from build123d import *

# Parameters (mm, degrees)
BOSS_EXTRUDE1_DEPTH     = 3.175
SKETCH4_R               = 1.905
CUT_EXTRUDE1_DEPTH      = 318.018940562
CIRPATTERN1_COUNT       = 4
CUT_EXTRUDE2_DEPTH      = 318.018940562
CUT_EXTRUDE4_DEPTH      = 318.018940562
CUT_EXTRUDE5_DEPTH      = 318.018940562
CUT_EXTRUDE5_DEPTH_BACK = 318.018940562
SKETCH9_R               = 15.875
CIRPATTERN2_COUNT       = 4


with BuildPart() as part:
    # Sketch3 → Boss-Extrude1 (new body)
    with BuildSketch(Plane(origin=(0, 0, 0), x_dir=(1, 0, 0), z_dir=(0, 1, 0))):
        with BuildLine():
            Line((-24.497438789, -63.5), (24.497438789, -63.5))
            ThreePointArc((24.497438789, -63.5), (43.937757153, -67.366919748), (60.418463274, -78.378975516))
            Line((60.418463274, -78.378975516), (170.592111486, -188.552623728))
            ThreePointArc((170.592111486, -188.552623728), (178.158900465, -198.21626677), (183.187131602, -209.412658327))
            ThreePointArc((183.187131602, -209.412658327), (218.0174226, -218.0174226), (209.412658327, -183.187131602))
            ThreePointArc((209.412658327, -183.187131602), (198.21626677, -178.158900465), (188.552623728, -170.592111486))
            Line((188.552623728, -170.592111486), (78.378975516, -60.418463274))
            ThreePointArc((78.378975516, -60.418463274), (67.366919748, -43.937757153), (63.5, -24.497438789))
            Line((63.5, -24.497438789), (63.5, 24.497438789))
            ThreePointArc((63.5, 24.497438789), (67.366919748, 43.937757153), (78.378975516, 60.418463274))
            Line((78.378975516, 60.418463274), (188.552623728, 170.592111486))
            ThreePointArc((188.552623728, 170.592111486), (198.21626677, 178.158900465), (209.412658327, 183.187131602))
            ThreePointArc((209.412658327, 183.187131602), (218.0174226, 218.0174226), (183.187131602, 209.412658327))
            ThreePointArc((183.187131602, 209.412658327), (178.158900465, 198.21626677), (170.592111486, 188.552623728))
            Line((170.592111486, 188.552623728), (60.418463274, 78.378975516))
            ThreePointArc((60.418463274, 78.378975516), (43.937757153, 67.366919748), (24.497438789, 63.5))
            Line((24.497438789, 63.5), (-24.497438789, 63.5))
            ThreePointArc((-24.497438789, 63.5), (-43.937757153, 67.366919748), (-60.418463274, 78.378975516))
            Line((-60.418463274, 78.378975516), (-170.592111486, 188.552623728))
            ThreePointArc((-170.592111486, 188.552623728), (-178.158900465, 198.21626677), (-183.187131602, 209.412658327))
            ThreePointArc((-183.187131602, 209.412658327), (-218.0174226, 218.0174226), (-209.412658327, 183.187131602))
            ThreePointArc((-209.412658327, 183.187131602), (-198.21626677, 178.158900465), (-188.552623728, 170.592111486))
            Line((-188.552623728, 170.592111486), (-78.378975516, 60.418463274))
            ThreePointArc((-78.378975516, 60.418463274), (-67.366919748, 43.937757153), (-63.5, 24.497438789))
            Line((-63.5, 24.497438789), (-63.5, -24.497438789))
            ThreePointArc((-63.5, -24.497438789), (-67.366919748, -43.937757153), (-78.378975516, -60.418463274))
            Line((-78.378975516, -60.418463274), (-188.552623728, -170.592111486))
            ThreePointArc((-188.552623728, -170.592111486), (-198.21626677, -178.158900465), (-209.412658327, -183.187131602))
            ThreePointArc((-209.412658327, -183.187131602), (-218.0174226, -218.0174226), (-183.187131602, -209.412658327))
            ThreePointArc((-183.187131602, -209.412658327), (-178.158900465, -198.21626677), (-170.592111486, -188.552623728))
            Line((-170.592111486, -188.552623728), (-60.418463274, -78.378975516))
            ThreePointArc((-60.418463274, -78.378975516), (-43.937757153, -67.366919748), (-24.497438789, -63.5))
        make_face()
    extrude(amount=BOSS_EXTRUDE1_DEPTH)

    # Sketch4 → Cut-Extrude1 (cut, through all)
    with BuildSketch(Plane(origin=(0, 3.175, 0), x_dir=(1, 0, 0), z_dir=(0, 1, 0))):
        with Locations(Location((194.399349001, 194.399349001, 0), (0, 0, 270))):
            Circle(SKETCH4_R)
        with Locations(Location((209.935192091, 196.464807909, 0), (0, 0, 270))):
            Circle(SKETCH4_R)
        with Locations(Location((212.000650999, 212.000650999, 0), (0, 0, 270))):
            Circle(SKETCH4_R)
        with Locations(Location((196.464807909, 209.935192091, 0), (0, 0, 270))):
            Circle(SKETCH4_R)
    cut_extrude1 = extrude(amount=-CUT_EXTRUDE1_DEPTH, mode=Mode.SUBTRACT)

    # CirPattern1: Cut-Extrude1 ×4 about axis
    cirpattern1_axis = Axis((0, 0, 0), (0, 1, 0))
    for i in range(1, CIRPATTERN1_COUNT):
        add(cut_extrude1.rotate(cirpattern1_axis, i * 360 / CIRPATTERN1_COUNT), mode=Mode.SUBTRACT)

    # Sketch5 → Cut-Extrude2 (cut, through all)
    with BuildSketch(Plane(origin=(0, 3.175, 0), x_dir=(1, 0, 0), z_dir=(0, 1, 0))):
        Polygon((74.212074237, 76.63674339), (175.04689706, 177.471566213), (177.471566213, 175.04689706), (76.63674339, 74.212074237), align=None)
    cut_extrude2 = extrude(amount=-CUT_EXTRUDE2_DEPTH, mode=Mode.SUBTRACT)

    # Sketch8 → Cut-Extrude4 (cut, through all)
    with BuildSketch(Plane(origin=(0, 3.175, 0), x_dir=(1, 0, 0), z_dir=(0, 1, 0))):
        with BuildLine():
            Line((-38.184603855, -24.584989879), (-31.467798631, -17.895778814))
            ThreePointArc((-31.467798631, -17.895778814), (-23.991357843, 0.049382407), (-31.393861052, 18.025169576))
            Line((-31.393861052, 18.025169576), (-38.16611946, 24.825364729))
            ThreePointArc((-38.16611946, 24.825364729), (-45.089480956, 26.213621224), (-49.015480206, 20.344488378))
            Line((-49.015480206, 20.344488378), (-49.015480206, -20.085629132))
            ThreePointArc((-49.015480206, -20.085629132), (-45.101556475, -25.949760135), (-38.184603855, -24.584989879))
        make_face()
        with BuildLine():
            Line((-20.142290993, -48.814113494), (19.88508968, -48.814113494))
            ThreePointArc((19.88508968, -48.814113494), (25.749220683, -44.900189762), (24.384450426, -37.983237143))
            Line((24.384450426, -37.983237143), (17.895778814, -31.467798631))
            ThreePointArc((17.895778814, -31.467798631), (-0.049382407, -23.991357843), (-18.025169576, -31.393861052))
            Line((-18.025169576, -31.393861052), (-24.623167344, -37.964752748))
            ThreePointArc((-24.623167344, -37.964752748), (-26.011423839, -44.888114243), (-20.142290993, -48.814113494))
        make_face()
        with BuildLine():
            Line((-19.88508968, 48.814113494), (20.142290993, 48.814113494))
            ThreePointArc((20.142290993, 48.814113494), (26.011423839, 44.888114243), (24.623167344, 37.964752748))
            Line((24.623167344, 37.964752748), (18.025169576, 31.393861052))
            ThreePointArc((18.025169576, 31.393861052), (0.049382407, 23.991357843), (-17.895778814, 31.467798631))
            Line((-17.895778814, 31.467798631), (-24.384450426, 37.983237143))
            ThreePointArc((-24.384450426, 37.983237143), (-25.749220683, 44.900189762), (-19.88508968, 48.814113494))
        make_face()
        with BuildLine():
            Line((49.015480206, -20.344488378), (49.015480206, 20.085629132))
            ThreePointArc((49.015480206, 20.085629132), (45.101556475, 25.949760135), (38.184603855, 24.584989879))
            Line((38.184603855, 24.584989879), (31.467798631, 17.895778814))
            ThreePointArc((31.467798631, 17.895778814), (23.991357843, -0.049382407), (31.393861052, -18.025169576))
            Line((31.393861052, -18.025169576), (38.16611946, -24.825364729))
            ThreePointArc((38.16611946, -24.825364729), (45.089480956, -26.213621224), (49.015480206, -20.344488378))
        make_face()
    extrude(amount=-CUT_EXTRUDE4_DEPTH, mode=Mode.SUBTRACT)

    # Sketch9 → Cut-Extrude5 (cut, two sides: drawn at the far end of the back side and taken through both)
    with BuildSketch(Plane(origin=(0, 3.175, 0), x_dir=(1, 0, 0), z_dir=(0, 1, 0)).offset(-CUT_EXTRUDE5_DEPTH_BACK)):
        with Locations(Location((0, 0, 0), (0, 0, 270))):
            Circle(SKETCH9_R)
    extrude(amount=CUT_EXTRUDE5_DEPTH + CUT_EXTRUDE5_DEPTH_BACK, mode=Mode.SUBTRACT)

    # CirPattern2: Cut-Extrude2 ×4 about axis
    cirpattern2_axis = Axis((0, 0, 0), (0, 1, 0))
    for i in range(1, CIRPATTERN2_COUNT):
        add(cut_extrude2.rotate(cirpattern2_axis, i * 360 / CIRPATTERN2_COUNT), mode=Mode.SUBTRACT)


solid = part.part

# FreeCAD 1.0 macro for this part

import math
import FreeCAD as App
import Part
import Sketcher
Q = App.Units.Quantity


def add_polygon(sketch, points):
    """Adds a closed chain of lines whose ends are joined by coincident constraints."""
    first, n = sketch.GeometryCount, len(points)
    for a, b in zip(points, points[1:] + points[:1]):
        sketch.addGeometry(Part.LineSegment(App.Vector(*a, 0), App.Vector(*b, 0)), False)
    for i in range(n):
        sketch.addConstraint(Sketcher.Constraint("Coincident", first + i, 2, first + (i + 1) % n, 1))

doc = App.newDocument("Part")
body = doc.addObject("PartDesign::Body", "Body")

# Sketch on XZ plane
sketch1 = body.newObject("Sketcher::SketchObject", "Sketch")
sketch1.AttachmentSupport = (doc.getObject("XZ_Plane"), [""])
sketch1.MapMode = "FlatFace"
sketch1.addGeometry([
    Part.LineSegment(App.Vector(-24.497439, 63.5, 0), App.Vector(24.497439, 63.5, 0)),  # 0
    Part.ArcOfCircle(Part.Circle(App.Vector(24.497439, 114.3, 0), App.Vector(0, 0, 1), 50.8), math.radians(-90), math.radians(-45)),  # 1
    Part.LineSegment(App.Vector(60.418463, 78.378976, 0), App.Vector(170.592111, 188.552624, 0)),  # 2
    Part.ArcOfCircle(Part.Circle(App.Vector(134.671087, 224.473648, 0), App.Vector(0, 0, 1), 50.8), math.radians(-45), math.radians(-17.246077)),  # 3
    Part.ArcOfCircle(Part.Circle(App.Vector(203.2, 203.2, 0), App.Vector(0, 0, 1), 20.955), math.radians(-72.753923), math.radians(162.753923)),  # 4
    Part.ArcOfCircle(Part.Circle(App.Vector(224.473648, 134.671087, 0), App.Vector(0, 0, 1), 50.8), math.radians(107.246077), math.radians(135)),  # 5
    Part.LineSegment(App.Vector(188.552624, 170.592111, 0), App.Vector(78.378976, 60.418463, 0)),  # 6
    Part.ArcOfCircle(Part.Circle(App.Vector(114.3, 24.497439, 0), App.Vector(0, 0, 1), 50.8), math.radians(135), math.radians(180)),  # 7
    Part.LineSegment(App.Vector(63.5, 24.497439, 0), App.Vector(63.5, -24.497439, 0)),  # 8
    Part.ArcOfCircle(Part.Circle(App.Vector(114.3, -24.497439, 0), App.Vector(0, 0, 1), 50.8), math.radians(180), math.radians(225)),  # 9
    Part.LineSegment(App.Vector(78.378976, -60.418463, 0), App.Vector(188.552624, -170.592111, 0)),  # 10
    Part.ArcOfCircle(Part.Circle(App.Vector(224.473648, -134.671087, 0), App.Vector(0, 0, 1), 50.8), math.radians(-135), math.radians(-107.246077)),  # 11
    Part.ArcOfCircle(Part.Circle(App.Vector(203.2, -203.2, 0), App.Vector(0, 0, 1), 20.955), math.radians(-162.753923), math.radians(72.753923)),  # 12
    Part.ArcOfCircle(Part.Circle(App.Vector(134.671087, -224.473648, 0), App.Vector(0, 0, 1), 50.8), math.radians(17.246077), math.radians(45)),  # 13
    Part.LineSegment(App.Vector(170.592111, -188.552624, 0), App.Vector(60.418463, -78.378976, 0)),  # 14
    Part.ArcOfCircle(Part.Circle(App.Vector(24.497439, -114.3, 0), App.Vector(0, 0, 1), 50.8), math.radians(45), math.radians(90)),  # 15
    Part.LineSegment(App.Vector(24.497439, -63.5, 0), App.Vector(-24.497439, -63.5, 0)),  # 16
    Part.ArcOfCircle(Part.Circle(App.Vector(-24.497439, -114.3, 0), App.Vector(0, 0, 1), 50.8), math.radians(90), math.radians(135)),  # 17
    Part.LineSegment(App.Vector(-60.418463, -78.378976, 0), App.Vector(-170.592111, -188.552624, 0)),  # 18
    Part.ArcOfCircle(Part.Circle(App.Vector(-134.671087, -224.473648, 0), App.Vector(0, 0, 1), 50.8), math.radians(135), math.radians(162.753923)),  # 19
    Part.ArcOfCircle(Part.Circle(App.Vector(-203.2, -203.2, 0), App.Vector(0, 0, 1), 20.955), math.radians(107.246077), math.radians(342.753923)),  # 20
    Part.ArcOfCircle(Part.Circle(App.Vector(-224.473648, -134.671087, 0), App.Vector(0, 0, 1), 50.8), math.radians(-72.753923), math.radians(-45)),  # 21
    Part.LineSegment(App.Vector(-188.552624, -170.592111, 0), App.Vector(-78.378976, -60.418463, 0)),  # 22
    Part.ArcOfCircle(Part.Circle(App.Vector(-114.3, -24.497439, 0), App.Vector(0, 0, 1), 50.8), math.radians(-45), math.radians(0)),  # 23
    Part.LineSegment(App.Vector(-63.5, -24.497439, 0), App.Vector(-63.5, 24.497439, 0)),  # 24
    Part.ArcOfCircle(Part.Circle(App.Vector(-114.3, 24.497439, 0), App.Vector(0, 0, 1), 50.8), math.radians(0), math.radians(45)),  # 25
    Part.LineSegment(App.Vector(-78.378976, 60.418463, 0), App.Vector(-188.552624, 170.592111, 0)),  # 26
    Part.ArcOfCircle(Part.Circle(App.Vector(-224.473648, 134.671087, 0), App.Vector(0, 0, 1), 50.8), math.radians(45), math.radians(72.753923)),  # 27
    Part.ArcOfCircle(Part.Circle(App.Vector(-203.2, 203.2, 0), App.Vector(0, 0, 1), 20.955), math.radians(17.246077), math.radians(252.753923)),  # 28
    Part.ArcOfCircle(Part.Circle(App.Vector(-134.671087, 224.473648, 0), App.Vector(0, 0, 1), 50.8), math.radians(-162.753923), math.radians(-135)),  # 29
    Part.LineSegment(App.Vector(-170.592111, 188.552624, 0), App.Vector(-60.418463, 78.378976, 0)),  # 30
    Part.ArcOfCircle(Part.Circle(App.Vector(-24.497439, 114.3, 0), App.Vector(0, 0, 1), 50.8), math.radians(-135), math.radians(-90)),  # 31
], False)
sketch1.addConstraint([
    Sketcher.Constraint("Tangent", 0, 2, 1, 1),
    Sketcher.Constraint("Tangent", 1, 2, 2, 1),
    Sketcher.Constraint("Tangent", 2, 2, 3, 1),
    Sketcher.Constraint("Tangent", 3, 2, 4, 2),
    Sketcher.Constraint("Tangent", 4, 1, 5, 1),
    Sketcher.Constraint("Tangent", 5, 2, 6, 1),
    Sketcher.Constraint("Tangent", 6, 2, 7, 1),
    Sketcher.Constraint("Tangent", 7, 2, 8, 1),
    Sketcher.Constraint("Tangent", 8, 2, 9, 1),
    Sketcher.Constraint("Tangent", 9, 2, 10, 1),
    Sketcher.Constraint("Tangent", 10, 2, 11, 1),
    Sketcher.Constraint("Tangent", 11, 2, 12, 2),
    Sketcher.Constraint("Tangent", 12, 1, 13, 1),
    Sketcher.Constraint("Tangent", 13, 2, 14, 1),
    Sketcher.Constraint("Tangent", 14, 2, 15, 1),
    Sketcher.Constraint("Tangent", 15, 2, 16, 1),
    Sketcher.Constraint("Tangent", 16, 2, 17, 1),
    Sketcher.Constraint("Tangent", 17, 2, 18, 1),
    Sketcher.Constraint("Tangent", 18, 2, 19, 1),
    Sketcher.Constraint("Tangent", 19, 2, 20, 2),
    Sketcher.Constraint("Tangent", 20, 1, 21, 1),
    Sketcher.Constraint("Tangent", 21, 2, 22, 1),
    Sketcher.Constraint("Tangent", 22, 2, 23, 1),
    Sketcher.Constraint("Tangent", 23, 2, 24, 1),
    Sketcher.Constraint("Tangent", 24, 2, 25, 1),
    Sketcher.Constraint("Tangent", 25, 2, 26, 1),
    Sketcher.Constraint("Tangent", 26, 2, 27, 1),
    Sketcher.Constraint("Tangent", 27, 2, 28, 2),
    Sketcher.Constraint("Tangent", 28, 1, 29, 1),
    Sketcher.Constraint("Tangent", 29, 2, 30, 1),
    Sketcher.Constraint("Tangent", 30, 2, 31, 1),
    Sketcher.Constraint("Tangent", 31, 2, 0, 1),
    Sketcher.Constraint("Horizontal", 0),
    Sketcher.Constraint("Vertical", 8),
    Sketcher.Constraint("Horizontal", 16),
    Sketcher.Constraint("Vertical", 24),
    Sketcher.Constraint("Equal", 1, 3),
    Sketcher.Constraint("Equal", 3, 5),
    Sketcher.Constraint("Equal", 5, 7),
    Sketcher.Constraint("Equal", 7, 9),
    Sketcher.Constraint("Equal", 9, 11),
    Sketcher.Constraint("Equal", 4, 12),
    Sketcher.Constraint("Equal", 11, 13),
    Sketcher.Constraint("Equal", 13, 15),
    Sketcher.Constraint("Equal", 15, 17),
    Sketcher.Constraint("Equal", 17, 19),
    Sketcher.Constraint("Equal", 12, 20),
    Sketcher.Constraint("Equal", 19, 21),
    Sketcher.Constraint("Equal", 21, 23),
    Sketcher.Constraint("Equal", 23, 25),
    Sketcher.Constraint("Equal", 25, 27),
    Sketcher.Constraint("Equal", 20, 28),
    Sketcher.Constraint("Equal", 27, 29),
    Sketcher.Constraint("Equal", 29, 31),
    Sketcher.Constraint("Symmetric", 1, 3, 17, 3, -1, 1),
    Sketcher.Constraint("Symmetric", 3, 3, 19, 3, -1, 1),
    Sketcher.Constraint("Symmetric", 5, 3, 21, 3, -1, 1),
    Sketcher.Constraint("Symmetric", 7, 3, 23, 3, -1, 1),
    Sketcher.Constraint("Symmetric", 11, 3, 27, 3, -1, 1),
    Sketcher.Constraint("Symmetric", 13, 3, 29, 3, -1, 1),
    Sketcher.Constraint("Symmetric", 13, 3, 19, 3, -2),
    Sketcher.Constraint("Symmetric", 11, 3, 21, 3, -2),
    Sketcher.Constraint("Parallel", 2, 6),
    Sketcher.Constraint("Perpendicular", 6, 10),
    Sketcher.Constraint("Parallel", 10, 14),
    Sketcher.Constraint("Perpendicular", 22, 26),
    Sketcher.Constraint("Parallel", 26, 30),
    Sketcher.Constraint("Horizontal", 9, 3, 23, 3),
    Sketcher.Constraint("Equal", 16, 8),
    Sketcher.Constraint("Equal", 2, 6),
    Sketcher.Constraint("Radius", 1, Q("2 in")),
    Sketcher.Constraint("DistanceX", -1, 1, 4, 3, Q("8 in")),
    Sketcher.Constraint("DistanceY", -1, 1, 4, 3, Q("8 in")),
    Sketcher.Constraint("Radius", 4, Q("0.825 in")),
    Sketcher.Constraint("DistanceY", 17, 3, 1, 3, Q("9 in")),
    Sketcher.Constraint("DistanceX", 0, 1, 0, 2, 48.994878),
])
pad1 = body.newObject("PartDesign::Pad", "Pad")
pad1.Profile = sketch1
pad1.Length = Q("0.125 in")
pad1.Reversed = True

# Sketch on XZ plane
sketch2 = body.newObject("Sketcher::SketchObject", "Sketch001")
sketch2.AttachmentSupport = (doc.getObject("XZ_Plane"), [""])
sketch2.MapMode = "FlatFace"
sketch2.AttachmentOffset = App.Placement(App.Vector(0, 0, -0.125 * 25.4), App.Rotation())
sketch2.addGeometry([
    Part.Circle(App.Vector(194.399349, -194.399349, 0), App.Vector(0, 0, 1), 1.905),
    Part.Circle(App.Vector(209.935192, -196.464808, 0), App.Vector(0, 0, 1), 1.905),
    Part.Circle(App.Vector(212.000651, -212.000651, 0), App.Vector(0, 0, 1), 1.905),
    Part.Circle(App.Vector(196.464808, -209.935192, 0), App.Vector(0, 0, 1), 1.905),
], False)
sketch2.addConstraint([
    Sketcher.Constraint("Equal", 0, 1),
    Sketcher.Constraint("Equal", 1, 2),
    Sketcher.Constraint("Equal", 2, 3),
    Sketcher.Constraint("Diameter", 0, Q("0.15 in")),
    Sketcher.Constraint("DistanceX", 0, 3, 2, 3, 17.601302),
    Sketcher.Constraint("DistanceY", 2, 3, 0, 3, 17.601302),
    Sketcher.Constraint("DistanceX", -1, 1, 0, 3, 194.399349),
    Sketcher.Constraint("DistanceY", 0, 3, -1, 1, 194.399349),
    Sketcher.Constraint("DistanceY", 1, 3, 0, 3, 2.065459),
    Sketcher.Constraint("DistanceX", 1, 3, 2, 3, 2.065459),
    Sketcher.Constraint("DistanceY", 2, 3, 3, 3, 2.065459),
    Sketcher.Constraint("DistanceX", 0, 3, 3, 3, 2.065459),
])
pocket1 = body.newObject("PartDesign::Pocket", "Pocket")
pocket1.Profile = sketch2
pocket1.Type = "ThroughAll"
pocket1.Reversed = True
doc.recompute()

polarpattern = body.newObject("PartDesign::PolarPattern", "PolarPattern")
polarpattern.Originals = [pocket1]
polarpattern.Axis = (doc.getObject("Y_Axis"), [""])
polarpattern.Angle = 360
polarpattern.Occurrences = 4
body.Tip = polarpattern

# Sketch on XZ plane
sketch3 = body.newObject("Sketcher::SketchObject", "Sketch002")
sketch3.AttachmentSupport = (doc.getObject("XZ_Plane"), [""])
sketch3.MapMode = "FlatFace"
sketch3.AttachmentOffset = App.Placement(App.Vector(0, 0, -0.125 * 25.4), App.Rotation())
add_polygon(sketch3, [(175.046897, -177.471566), (74.212074, -76.636743), (76.636743, -74.212074), (177.471566, -175.046897)])  # lines 0-3
sketch3.addConstraint([
    Sketcher.Constraint("Perpendicular", 0, 1),
    Sketcher.Constraint("Perpendicular", 1, 2),
    Sketcher.Constraint("Perpendicular", 2, 3),
    Sketcher.Constraint("Angle", 0, Q("135 deg")),
    Sketcher.Constraint("Distance", 1, Q("0.135 in")),
    Sketcher.Constraint("DistanceX", 0, 2, 2, 2, 103.259492),
    Sketcher.Constraint("DistanceX", -1, 1, 0, 2, 74.212074),
    Sketcher.Constraint("DistanceY", 0, 2, -1, 1, 76.636743),
])
pocket2 = body.newObject("PartDesign::Pocket", "Pocket001")
pocket2.Profile = sketch3
pocket2.Type = "ThroughAll"
pocket2.Reversed = True

# Sketch on XZ plane
sketch4 = body.newObject("Sketcher::SketchObject", "Sketch003")
sketch4.AttachmentSupport = (doc.getObject("XZ_Plane"), [""])
sketch4.MapMode = "FlatFace"
sketch4.AttachmentOffset = App.Placement(App.Vector(0, 0, -0.125 * 25.4), App.Rotation())
sketch4.addGeometry([
    Part.LineSegment(App.Vector(-38.184604, 24.58499, 0), App.Vector(-31.467799, 17.895779, 0)),  # 0
    Part.ArcOfCircle(Part.Circle(App.Vector(-49.391304, -0.101664, 0), App.Vector(0, 0, 1), 25.4), math.radians(-44.882066), math.radians(45.117934)),  # 1
    Part.LineSegment(App.Vector(-31.393861, -18.02517, 0), App.Vector(-38.166119, -24.825365, 0)),  # 2
    Part.ArcOfCircle(Part.Circle(App.Vector(-42.66548, -20.344488, 0), App.Vector(0, 0, 1), 6.35), math.radians(180), math.radians(315.117934)),  # 3
    Part.LineSegment(App.Vector(-49.01548, -20.344488, 0), App.Vector(-49.01548, 20.085629, 0)),  # 4
    Part.ArcOfCircle(Part.Circle(App.Vector(-42.66548, 20.085629, 0), App.Vector(0, 0, 1), 6.35), math.radians(45.117934), math.radians(180)),  # 5
    Part.LineSegment(App.Vector(-20.142291, 48.814113, 0), App.Vector(19.88509, 48.814113, 0)),  # 6
    Part.ArcOfCircle(Part.Circle(App.Vector(19.88509, 42.464113, 0), App.Vector(0, 0, 1), 6.35), math.radians(-44.882066), math.radians(90)),  # 7
    Part.LineSegment(App.Vector(24.38445, 37.983237, 0), App.Vector(17.895779, 31.467799, 0)),  # 8
    Part.ArcOfCircle(Part.Circle(App.Vector(-0.101664, 49.391304, 0), App.Vector(0, 0, 1), 25.4), math.radians(-134.882066), math.radians(-44.882066)),  # 9
    Part.LineSegment(App.Vector(-18.02517, 31.393861, 0), App.Vector(-24.623167, 37.964753, 0)),  # 10
    Part.ArcOfCircle(Part.Circle(App.Vector(-20.142291, 42.464113, 0), App.Vector(0, 0, 1), 6.35), math.radians(90), math.radians(225.117934)),  # 11
    Part.LineSegment(App.Vector(20.142291, -48.814113, 0), App.Vector(-19.88509, -48.814113, 0)),  # 12
    Part.ArcOfCircle(Part.Circle(App.Vector(-19.88509, -42.464113, 0), App.Vector(0, 0, 1), 6.35), math.radians(135.117934), math.radians(270)),  # 13
    Part.LineSegment(App.Vector(-24.38445, -37.983237, 0), App.Vector(-17.895779, -31.467799, 0)),  # 14
    Part.ArcOfCircle(Part.Circle(App.Vector(0.101664, -49.391304, 0), App.Vector(0, 0, 1), 25.4), math.radians(45.117934), math.radians(135.117934)),  # 15
    Part.LineSegment(App.Vector(18.02517, -31.393861, 0), App.Vector(24.623167, -37.964753, 0)),  # 16
    Part.ArcOfCircle(Part.Circle(App.Vector(20.142291, -42.464113, 0), App.Vector(0, 0, 1), 6.35), math.radians(-90), math.radians(45.117934)),  # 17
    Part.LineSegment(App.Vector(49.01548, 20.344488, 0), App.Vector(49.01548, -20.085629, 0)),  # 18
    Part.ArcOfCircle(Part.Circle(App.Vector(42.66548, -20.085629, 0), App.Vector(0, 0, 1), 6.35), math.radians(-134.882066), math.radians(0)),  # 19
    Part.LineSegment(App.Vector(38.184604, -24.58499, 0), App.Vector(31.467799, -17.895779, 0)),  # 20
    Part.ArcOfCircle(Part.Circle(App.Vector(49.391304, 0.101664, 0), App.Vector(0, 0, 1), 25.4), math.radians(135.117934), math.radians(225.117934)),  # 21
    Part.LineSegment(App.Vector(31.393861, 18.02517, 0), App.Vector(38.166119, 24.825365, 0)),  # 22
    Part.ArcOfCircle(Part.Circle(App.Vector(42.66548, 20.344488, 0), App.Vector(0, 0, 1), 6.35), math.radians(0), math.radians(135.117934)),  # 23
], False)
sketch4.addConstraint([
    Sketcher.Constraint("Tangent", 0, 2, 1, 2),
    Sketcher.Constraint("Tangent", 1, 1, 2, 1),
    Sketcher.Constraint("Tangent", 2, 2, 3, 2),
    Sketcher.Constraint("Tangent", 3, 1, 4, 1),
    Sketcher.Constraint("Tangent", 4, 2, 5, 2),
    Sketcher.Constraint("Tangent", 5, 1, 0, 1),
    Sketcher.Constraint("Tangent", 6, 2, 7, 2),
    Sketcher.Constraint("Tangent", 7, 1, 8, 1),
    Sketcher.Constraint("Tangent", 8, 2, 9, 2),
    Sketcher.Constraint("Tangent", 9, 1, 10, 1),
    Sketcher.Constraint("Tangent", 10, 2, 11, 2),
    Sketcher.Constraint("Tangent", 11, 1, 6, 1),
    Sketcher.Constraint("Tangent", 12, 2, 13, 2),
    Sketcher.Constraint("Tangent", 13, 1, 14, 1),
    Sketcher.Constraint("Tangent", 14, 2, 15, 2),
    Sketcher.Constraint("Tangent", 15, 1, 16, 1),
    Sketcher.Constraint("Tangent", 16, 2, 17, 2),
    Sketcher.Constraint("Tangent", 17, 1, 12, 1),
    Sketcher.Constraint("Tangent", 18, 2, 19, 2),
    Sketcher.Constraint("Tangent", 19, 1, 20, 1),
    Sketcher.Constraint("Tangent", 20, 2, 21, 2),
    Sketcher.Constraint("Tangent", 21, 1, 22, 1),
    Sketcher.Constraint("Tangent", 22, 2, 23, 2),
    Sketcher.Constraint("Tangent", 23, 1, 18, 1),
    Sketcher.Constraint("Vertical", 4),
    Sketcher.Constraint("Horizontal", 6),
    Sketcher.Constraint("Horizontal", 12),
    Sketcher.Constraint("Vertical", 18),
    Sketcher.Constraint("Equal", 3, 5),
    Sketcher.Constraint("Equal", 5, 7),
    Sketcher.Constraint("Equal", 1, 9),
    Sketcher.Constraint("Equal", 7, 11),
    Sketcher.Constraint("Equal", 11, 13),
    Sketcher.Constraint("Equal", 9, 15),
    Sketcher.Constraint("Equal", 13, 17),
    Sketcher.Constraint("Equal", 17, 19),
    Sketcher.Constraint("Equal", 15, 21),
    Sketcher.Constraint("Equal", 19, 23),
    Sketcher.Constraint("Symmetric", 7, 3, 13, 3, -1, 1),
    Sketcher.Constraint("Symmetric", 9, 3, 15, 3, -1, 1),
    Sketcher.Constraint("Symmetric", 5, 3, 19, 3, -1, 1),
    Sketcher.Constraint("Symmetric", 1, 3, 21, 3, -1, 1),
    Sketcher.Constraint("Perpendicular", 0, 2),
    Sketcher.Constraint("Parallel", 2, 8),
    Sketcher.Constraint("Perpendicular", 8, 10),
    Sketcher.Constraint("Perpendicular", 14, 16),
    Sketcher.Constraint("Perpendicular", 20, 22),
    Sketcher.Constraint("Radius", 1, Q("1 in")),
    Sketcher.Constraint("Radius", 3, Q("0.25 in")),
    Sketcher.Constraint("DistanceX", 6, 1, 6, 2, 40.027381),
    Sketcher.Constraint("DistanceX", 0, 2, -1, 1, 31.467799),
    Sketcher.Constraint("DistanceY", -1, 1, 8, 2, 31.467799),
    Sketcher.Constraint("DistanceY", 3, 3, 7, 3, 62.808602),
    Sketcher.Constraint("DistanceX", 11, 3, 13, 3, 0.257201),
    Sketcher.Constraint("DistanceY", 1, 1, 5, 3, 38.110799),
    Sketcher.Constraint("DistanceY", 2, 2, 1, 3, 24.723701),
])
pocket3 = body.newObject("PartDesign::Pocket", "Pocket002")
pocket3.Profile = sketch4
pocket3.Type = "ThroughAll"
pocket3.Reversed = True

# Sketch on XZ plane
sketch5 = body.newObject("Sketcher::SketchObject", "Sketch004")
sketch5.AttachmentSupport = (doc.getObject("XZ_Plane"), [""])
sketch5.MapMode = "FlatFace"
sketch5.AttachmentOffset = App.Placement(App.Vector(0, 0, -0.125 * 25.4), App.Rotation())
sketch5.addGeometry(Part.Circle(App.Vector(0, 0, 0), App.Vector(0, 0, 1), 15.875), False)
sketch5.addConstraint([
    Sketcher.Constraint("Coincident", 0, 3, -1, 1),
    Sketcher.Constraint("Diameter", 0, Q("1.25 in")),
])
pocket4 = body.newObject("PartDesign::Pocket", "Pocket003")
pocket4.Profile = sketch5
pocket4.Type = "ThroughAll"
pocket4.Midplane = True
doc.recompute()

polarpattern2 = body.newObject("PartDesign::PolarPattern", "PolarPattern001")
polarpattern2.Originals = [pocket2]
polarpattern2.Axis = (doc.getObject("Y_Axis"), [""])
polarpattern2.Angle = 360
polarpattern2.Occurrences = 4
body.Tip = polarpattern2

doc.recompute()
